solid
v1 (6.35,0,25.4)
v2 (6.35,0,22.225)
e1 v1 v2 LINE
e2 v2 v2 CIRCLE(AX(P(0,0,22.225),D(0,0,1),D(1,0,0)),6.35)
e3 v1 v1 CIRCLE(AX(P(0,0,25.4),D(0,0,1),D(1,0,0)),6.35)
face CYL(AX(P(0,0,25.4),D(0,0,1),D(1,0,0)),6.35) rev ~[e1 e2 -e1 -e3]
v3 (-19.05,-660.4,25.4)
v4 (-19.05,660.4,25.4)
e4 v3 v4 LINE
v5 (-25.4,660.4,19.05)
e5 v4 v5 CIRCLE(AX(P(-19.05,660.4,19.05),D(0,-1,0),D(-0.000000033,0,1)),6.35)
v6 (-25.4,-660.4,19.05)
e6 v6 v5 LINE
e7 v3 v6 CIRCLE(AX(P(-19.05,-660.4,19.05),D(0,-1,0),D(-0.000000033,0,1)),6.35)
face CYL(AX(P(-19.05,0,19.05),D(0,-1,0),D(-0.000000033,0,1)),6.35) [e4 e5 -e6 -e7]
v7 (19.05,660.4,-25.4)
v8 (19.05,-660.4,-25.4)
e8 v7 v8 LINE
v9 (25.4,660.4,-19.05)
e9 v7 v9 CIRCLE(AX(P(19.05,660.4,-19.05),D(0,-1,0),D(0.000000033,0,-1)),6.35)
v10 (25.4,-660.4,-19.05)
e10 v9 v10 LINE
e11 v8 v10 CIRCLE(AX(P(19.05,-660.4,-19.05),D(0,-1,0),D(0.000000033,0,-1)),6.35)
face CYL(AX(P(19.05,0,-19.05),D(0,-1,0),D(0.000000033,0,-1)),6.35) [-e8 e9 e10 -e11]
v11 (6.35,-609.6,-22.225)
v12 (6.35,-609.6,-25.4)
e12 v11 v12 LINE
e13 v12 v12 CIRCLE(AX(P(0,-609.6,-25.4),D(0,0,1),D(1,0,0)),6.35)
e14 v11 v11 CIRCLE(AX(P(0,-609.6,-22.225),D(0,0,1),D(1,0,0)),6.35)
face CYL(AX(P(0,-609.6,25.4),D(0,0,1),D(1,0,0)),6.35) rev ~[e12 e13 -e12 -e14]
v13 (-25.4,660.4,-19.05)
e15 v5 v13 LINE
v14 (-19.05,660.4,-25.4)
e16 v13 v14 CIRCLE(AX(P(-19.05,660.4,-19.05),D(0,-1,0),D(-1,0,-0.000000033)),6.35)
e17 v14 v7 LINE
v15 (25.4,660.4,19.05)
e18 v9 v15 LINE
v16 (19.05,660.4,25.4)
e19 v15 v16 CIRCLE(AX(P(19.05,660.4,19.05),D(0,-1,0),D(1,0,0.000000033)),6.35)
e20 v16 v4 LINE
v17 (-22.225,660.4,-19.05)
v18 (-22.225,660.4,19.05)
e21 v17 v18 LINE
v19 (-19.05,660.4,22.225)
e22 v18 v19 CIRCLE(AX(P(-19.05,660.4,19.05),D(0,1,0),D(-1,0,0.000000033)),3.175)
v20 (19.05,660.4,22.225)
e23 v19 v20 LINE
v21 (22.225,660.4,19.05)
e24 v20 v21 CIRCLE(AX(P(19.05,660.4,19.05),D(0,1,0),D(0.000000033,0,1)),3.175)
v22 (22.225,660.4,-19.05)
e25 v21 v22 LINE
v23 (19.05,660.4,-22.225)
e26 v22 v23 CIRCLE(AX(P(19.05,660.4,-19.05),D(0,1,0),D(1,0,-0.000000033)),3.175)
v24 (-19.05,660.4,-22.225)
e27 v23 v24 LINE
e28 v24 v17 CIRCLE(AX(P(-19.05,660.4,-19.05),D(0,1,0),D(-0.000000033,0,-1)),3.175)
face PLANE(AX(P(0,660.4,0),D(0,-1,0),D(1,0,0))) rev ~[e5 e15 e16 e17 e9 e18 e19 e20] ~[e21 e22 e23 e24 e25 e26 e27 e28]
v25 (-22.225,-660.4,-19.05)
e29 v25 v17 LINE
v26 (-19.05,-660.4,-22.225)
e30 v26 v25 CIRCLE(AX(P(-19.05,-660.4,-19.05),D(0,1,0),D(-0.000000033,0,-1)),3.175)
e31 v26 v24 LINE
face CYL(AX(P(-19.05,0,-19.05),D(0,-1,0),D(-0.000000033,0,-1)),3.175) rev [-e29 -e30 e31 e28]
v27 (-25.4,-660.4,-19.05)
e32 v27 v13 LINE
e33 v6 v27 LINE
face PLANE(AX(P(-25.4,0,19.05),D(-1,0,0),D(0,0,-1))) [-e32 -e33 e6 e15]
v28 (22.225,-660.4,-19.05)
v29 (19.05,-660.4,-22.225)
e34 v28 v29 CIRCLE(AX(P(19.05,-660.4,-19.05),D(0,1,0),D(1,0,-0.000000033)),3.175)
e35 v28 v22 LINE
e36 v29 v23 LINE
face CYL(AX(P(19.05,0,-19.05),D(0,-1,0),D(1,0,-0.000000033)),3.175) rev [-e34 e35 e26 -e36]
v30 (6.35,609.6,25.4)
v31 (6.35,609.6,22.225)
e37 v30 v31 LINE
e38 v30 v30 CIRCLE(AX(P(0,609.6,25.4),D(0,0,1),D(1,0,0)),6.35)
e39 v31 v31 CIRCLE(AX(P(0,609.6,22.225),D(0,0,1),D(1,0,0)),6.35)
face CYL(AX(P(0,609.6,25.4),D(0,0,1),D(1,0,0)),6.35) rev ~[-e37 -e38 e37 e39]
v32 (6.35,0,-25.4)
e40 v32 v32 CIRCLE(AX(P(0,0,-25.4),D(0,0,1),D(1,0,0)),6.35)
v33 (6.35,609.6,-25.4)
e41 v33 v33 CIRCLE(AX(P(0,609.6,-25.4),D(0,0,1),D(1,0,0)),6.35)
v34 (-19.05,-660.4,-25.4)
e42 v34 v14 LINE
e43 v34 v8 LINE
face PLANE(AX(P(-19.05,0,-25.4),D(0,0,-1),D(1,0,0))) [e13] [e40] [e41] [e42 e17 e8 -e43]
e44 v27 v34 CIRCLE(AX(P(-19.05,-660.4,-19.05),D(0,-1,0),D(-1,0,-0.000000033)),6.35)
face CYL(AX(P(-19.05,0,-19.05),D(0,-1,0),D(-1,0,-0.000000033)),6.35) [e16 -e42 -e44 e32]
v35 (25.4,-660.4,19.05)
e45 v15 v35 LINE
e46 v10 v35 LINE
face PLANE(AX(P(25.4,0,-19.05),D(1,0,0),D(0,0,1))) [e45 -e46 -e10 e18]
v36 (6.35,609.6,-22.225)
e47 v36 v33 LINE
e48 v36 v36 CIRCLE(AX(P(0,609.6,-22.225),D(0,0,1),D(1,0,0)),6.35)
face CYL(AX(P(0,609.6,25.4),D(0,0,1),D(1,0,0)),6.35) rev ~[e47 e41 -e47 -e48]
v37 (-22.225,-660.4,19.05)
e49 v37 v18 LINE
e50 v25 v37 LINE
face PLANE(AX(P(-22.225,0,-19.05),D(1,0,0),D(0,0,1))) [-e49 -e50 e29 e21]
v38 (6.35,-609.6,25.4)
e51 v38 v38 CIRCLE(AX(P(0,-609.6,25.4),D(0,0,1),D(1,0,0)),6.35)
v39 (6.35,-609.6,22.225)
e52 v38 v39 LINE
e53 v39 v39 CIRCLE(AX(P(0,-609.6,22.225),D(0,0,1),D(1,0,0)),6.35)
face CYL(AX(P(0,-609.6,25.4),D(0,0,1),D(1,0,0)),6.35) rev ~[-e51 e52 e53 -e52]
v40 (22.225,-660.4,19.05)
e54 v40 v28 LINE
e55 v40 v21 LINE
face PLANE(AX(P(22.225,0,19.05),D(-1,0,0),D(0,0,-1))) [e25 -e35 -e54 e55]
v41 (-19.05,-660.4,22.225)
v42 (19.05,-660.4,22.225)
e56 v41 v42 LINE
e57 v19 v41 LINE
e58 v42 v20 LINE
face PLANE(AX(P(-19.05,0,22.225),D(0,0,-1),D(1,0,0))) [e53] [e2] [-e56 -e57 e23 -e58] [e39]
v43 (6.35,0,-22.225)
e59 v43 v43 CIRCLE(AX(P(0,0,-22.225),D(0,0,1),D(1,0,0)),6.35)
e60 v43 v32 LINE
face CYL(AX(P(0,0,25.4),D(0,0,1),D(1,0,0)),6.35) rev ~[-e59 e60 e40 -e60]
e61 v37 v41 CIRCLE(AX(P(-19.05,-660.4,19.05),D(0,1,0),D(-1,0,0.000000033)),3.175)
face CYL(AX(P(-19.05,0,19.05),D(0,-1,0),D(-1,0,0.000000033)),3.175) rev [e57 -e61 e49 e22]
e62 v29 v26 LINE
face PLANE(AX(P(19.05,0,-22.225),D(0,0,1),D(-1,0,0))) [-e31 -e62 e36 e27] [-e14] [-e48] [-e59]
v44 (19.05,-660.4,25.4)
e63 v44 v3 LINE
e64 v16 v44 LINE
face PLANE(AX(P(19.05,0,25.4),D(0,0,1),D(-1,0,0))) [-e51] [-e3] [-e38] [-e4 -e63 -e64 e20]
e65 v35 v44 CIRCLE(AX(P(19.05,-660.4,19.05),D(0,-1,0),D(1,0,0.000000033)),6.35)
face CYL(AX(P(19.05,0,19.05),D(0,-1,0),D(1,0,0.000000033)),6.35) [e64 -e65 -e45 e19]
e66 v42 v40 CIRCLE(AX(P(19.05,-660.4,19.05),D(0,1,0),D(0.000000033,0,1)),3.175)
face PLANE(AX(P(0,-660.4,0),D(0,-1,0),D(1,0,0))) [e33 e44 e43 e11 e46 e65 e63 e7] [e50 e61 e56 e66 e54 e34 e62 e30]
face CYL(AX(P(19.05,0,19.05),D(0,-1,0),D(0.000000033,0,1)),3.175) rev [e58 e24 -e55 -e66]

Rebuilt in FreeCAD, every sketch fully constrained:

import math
import FreeCAD as App
import Part
import Sketcher
Q = App.Units.Quantity

doc = App.newDocument("Part")
params = doc.addObject("Spreadsheet::Sheet", "Params")
for row, (alias, value) in enumerate([
    ("sketch1_radius", "0.25 in"),
    ("sketch1_width", "1.5 in"),
    ("sketch1_radius2", "0.125 in"),
    ("pad1_length", "52 in"),
    ("sketch2_diameter", "0.5 in"),
], start=1):
    params.set(f"A{row}", alias)
    params.set(f"B{row}", "=" + value)
    params.setAlias(f"B{row}", alias)

body = doc.addObject("PartDesign::Body", "Body")

# Sketch on XZ plane
sketch1 = body.newObject("Sketcher::SketchObject", "Sketch")
sketch1.AttachmentSupport = (doc.getObject("XZ_Plane"), [""])
sketch1.MapMode = "FlatFace"
sketch1.addGeometry([
    Part.LineSegment(App.Vector(-19.05, -25.4, 0), App.Vector(19.05, -25.4, 0)),  # 0
    Part.ArcOfCircle(Part.Circle(App.Vector(19.05, -19.05, 0), App.Vector(0, 0, 1), 6.35), math.radians(-89.999998), math.radians(-0.000002)),  # 1
    Part.LineSegment(App.Vector(25.4, -19.05, 0), App.Vector(25.4, 19.05, 0)),  # 2
    Part.ArcOfCircle(Part.Circle(App.Vector(19.05, 19.05, 0), App.Vector(0, 0, 1), 6.35), math.radians(0.000002), math.radians(89.999998)),  # 3
    Part.LineSegment(App.Vector(19.05, 25.4, 0), App.Vector(-19.05, 25.4, 0)),  # 4
    Part.ArcOfCircle(Part.Circle(App.Vector(-19.05, 19.05, 0), App.Vector(0, 0, 1), 6.35), math.radians(90.000002), math.radians(179.999998)),  # 5
    Part.LineSegment(App.Vector(-25.4, 19.05, 0), App.Vector(-25.4, -19.05, 0)),  # 6
    Part.ArcOfCircle(Part.Circle(App.Vector(-19.05, -19.05, 0), App.Vector(0, 0, 1), 6.35), math.radians(-179.999998), math.radians(-90.000002)),  # 7
    Part.ArcOfCircle(Part.Circle(App.Vector(-19.05, 19.05, 0), App.Vector(0, 0, 1), 3.175), math.radians(90.000002), math.radians(179.999998)),  # 8
    Part.LineSegment(App.Vector(-19.05, 22.225, 0), App.Vector(19.05, 22.225, 0)),  # 9
    Part.ArcOfCircle(Part.Circle(App.Vector(19.05, 19.05, 0), App.Vector(0, 0, 1), 3.175), math.radians(0.000002), math.radians(89.999998)),  # 10
    Part.LineSegment(App.Vector(22.225, 19.05, 0), App.Vector(22.225, -19.05, 0)),  # 11
    Part.ArcOfCircle(Part.Circle(App.Vector(19.05, -19.05, 0), App.Vector(0, 0, 1), 3.175), math.radians(-89.999998), math.radians(-0.000002)),  # 12
    Part.LineSegment(App.Vector(19.05, -22.225, 0), App.Vector(-19.05, -22.225, 0)),  # 13
    Part.ArcOfCircle(Part.Circle(App.Vector(-19.05, -19.05, 0), App.Vector(0, 0, 1), 3.175), math.radians(-179.999998), math.radians(-90.000002)),  # 14
    Part.LineSegment(App.Vector(-22.225, -19.05, 0), App.Vector(-22.225, 19.05, 0)),  # 15
], False)
sketch1.addConstraint([
    Sketcher.Constraint("Tangent", 0, 2, 1, 1),
    Sketcher.Constraint("Tangent", 1, 2, 2, 1),
    Sketcher.Constraint("Tangent", 2, 2, 3, 1),
    Sketcher.Constraint("Tangent", 3, 2, 4, 1),
    Sketcher.Constraint("Tangent", 4, 2, 5, 1),
    Sketcher.Constraint("Tangent", 5, 2, 6, 1),
    Sketcher.Constraint("Tangent", 6, 2, 7, 1),
    Sketcher.Constraint("Tangent", 7, 2, 0, 1),
    Sketcher.Constraint("Tangent", 8, 1, 9, 1),
    Sketcher.Constraint("Tangent", 9, 2, 10, 2),
    Sketcher.Constraint("Tangent", 10, 1, 11, 1),
    Sketcher.Constraint("Tangent", 11, 2, 12, 2),
    Sketcher.Constraint("Tangent", 12, 1, 13, 1),
    Sketcher.Constraint("Tangent", 13, 2, 14, 2),
    Sketcher.Constraint("Tangent", 14, 1, 15, 1),
    Sketcher.Constraint("Tangent", 15, 2, 8, 2),
    Sketcher.Constraint("Horizontal", 0),
    Sketcher.Constraint("Vertical", 2),
    Sketcher.Constraint("Horizontal", 4),
    Sketcher.Constraint("Vertical", 6),
    Sketcher.Constraint("Horizontal", 9),
    Sketcher.Constraint("Vertical", 11),
    Sketcher.Constraint("Horizontal", 13),
    Sketcher.Constraint("Vertical", 15),
    Sketcher.Constraint("Coincident", 8, 3, 5, 3),
    Sketcher.Constraint("Coincident", 10, 3, 3, 3),
    Sketcher.Constraint("Coincident", 12, 3, 1, 3),
    Sketcher.Constraint("Equal", 1, 3),
    Sketcher.Constraint("Equal", 3, 5),
    Sketcher.Constraint("Equal", 5, 7),
    Sketcher.Constraint("Equal", 12, 14),
    Sketcher.Constraint("Symmetric", 1, 3, 5, 3, -1, 1),
    Sketcher.Constraint("Equal", 13, 2),
    Sketcher.Constraint("Radius", 1, Q("0.25 in")),
    Sketcher.Constraint("DistanceX", 0, 1, 0, 2, Q("1.5 in")),
    Sketcher.Constraint("Radius", 8, Q("0.125 in")),
])
sketch1.setExpression("Constraints[33]", "Params.sketch1_radius")
sketch1.setExpression("Constraints[34]", "Params.sketch1_width")
sketch1.setExpression("Constraints[35]", "Params.sketch1_radius2")
pad1 = body.newObject("PartDesign::Pad", "Pad")
pad1.Profile = sketch1
pad1.setExpression("Length", "Params.pad1_length")
pad1.Midplane = True

# Sketch on XY plane
sketch2 = body.newObject("Sketcher::SketchObject", "Sketch001")
sketch2.AttachmentSupport = (doc.getObject("XY_Plane"), [""])
sketch2.MapMode = "FlatFace"
sketch2.AttachmentOffset = App.Placement(App.Vector(0, 0, 1 * 25.4), App.Rotation())
sketch2.addGeometry([
    Part.Circle(App.Vector(0, 0, 0), App.Vector(0, 0, 1), 6.35),
    Part.Circle(App.Vector(0, -609.6, 0), App.Vector(0, 0, 1), 6.35),
    Part.Circle(App.Vector(0, 609.6, 0), App.Vector(0, 0, 1), 6.35),
], False)
sketch2.addConstraint([
    Sketcher.Constraint("Coincident", 0, 3, -1, 1),
    Sketcher.Constraint("Equal", 0, 1),
    Sketcher.Constraint("Equal", 1, 2),
    Sketcher.Constraint("Symmetric", 1, 3, 2, 3, -1, 1),
    Sketcher.Constraint("PointOnObject", 1, 3, -2),
    Sketcher.Constraint("Diameter", 0, Q("0.5 in")),
    Sketcher.Constraint("DistanceY", 1, 3, -1, 1, Q("24 in")),
])
sketch2.setExpression("Constraints[5]", "Params.sketch2_diameter")
pocket1 = body.newObject("PartDesign::Pocket", "Pocket")
pocket1.Profile = sketch2
pocket1.Type = "ThroughAll"

doc.recompute()
